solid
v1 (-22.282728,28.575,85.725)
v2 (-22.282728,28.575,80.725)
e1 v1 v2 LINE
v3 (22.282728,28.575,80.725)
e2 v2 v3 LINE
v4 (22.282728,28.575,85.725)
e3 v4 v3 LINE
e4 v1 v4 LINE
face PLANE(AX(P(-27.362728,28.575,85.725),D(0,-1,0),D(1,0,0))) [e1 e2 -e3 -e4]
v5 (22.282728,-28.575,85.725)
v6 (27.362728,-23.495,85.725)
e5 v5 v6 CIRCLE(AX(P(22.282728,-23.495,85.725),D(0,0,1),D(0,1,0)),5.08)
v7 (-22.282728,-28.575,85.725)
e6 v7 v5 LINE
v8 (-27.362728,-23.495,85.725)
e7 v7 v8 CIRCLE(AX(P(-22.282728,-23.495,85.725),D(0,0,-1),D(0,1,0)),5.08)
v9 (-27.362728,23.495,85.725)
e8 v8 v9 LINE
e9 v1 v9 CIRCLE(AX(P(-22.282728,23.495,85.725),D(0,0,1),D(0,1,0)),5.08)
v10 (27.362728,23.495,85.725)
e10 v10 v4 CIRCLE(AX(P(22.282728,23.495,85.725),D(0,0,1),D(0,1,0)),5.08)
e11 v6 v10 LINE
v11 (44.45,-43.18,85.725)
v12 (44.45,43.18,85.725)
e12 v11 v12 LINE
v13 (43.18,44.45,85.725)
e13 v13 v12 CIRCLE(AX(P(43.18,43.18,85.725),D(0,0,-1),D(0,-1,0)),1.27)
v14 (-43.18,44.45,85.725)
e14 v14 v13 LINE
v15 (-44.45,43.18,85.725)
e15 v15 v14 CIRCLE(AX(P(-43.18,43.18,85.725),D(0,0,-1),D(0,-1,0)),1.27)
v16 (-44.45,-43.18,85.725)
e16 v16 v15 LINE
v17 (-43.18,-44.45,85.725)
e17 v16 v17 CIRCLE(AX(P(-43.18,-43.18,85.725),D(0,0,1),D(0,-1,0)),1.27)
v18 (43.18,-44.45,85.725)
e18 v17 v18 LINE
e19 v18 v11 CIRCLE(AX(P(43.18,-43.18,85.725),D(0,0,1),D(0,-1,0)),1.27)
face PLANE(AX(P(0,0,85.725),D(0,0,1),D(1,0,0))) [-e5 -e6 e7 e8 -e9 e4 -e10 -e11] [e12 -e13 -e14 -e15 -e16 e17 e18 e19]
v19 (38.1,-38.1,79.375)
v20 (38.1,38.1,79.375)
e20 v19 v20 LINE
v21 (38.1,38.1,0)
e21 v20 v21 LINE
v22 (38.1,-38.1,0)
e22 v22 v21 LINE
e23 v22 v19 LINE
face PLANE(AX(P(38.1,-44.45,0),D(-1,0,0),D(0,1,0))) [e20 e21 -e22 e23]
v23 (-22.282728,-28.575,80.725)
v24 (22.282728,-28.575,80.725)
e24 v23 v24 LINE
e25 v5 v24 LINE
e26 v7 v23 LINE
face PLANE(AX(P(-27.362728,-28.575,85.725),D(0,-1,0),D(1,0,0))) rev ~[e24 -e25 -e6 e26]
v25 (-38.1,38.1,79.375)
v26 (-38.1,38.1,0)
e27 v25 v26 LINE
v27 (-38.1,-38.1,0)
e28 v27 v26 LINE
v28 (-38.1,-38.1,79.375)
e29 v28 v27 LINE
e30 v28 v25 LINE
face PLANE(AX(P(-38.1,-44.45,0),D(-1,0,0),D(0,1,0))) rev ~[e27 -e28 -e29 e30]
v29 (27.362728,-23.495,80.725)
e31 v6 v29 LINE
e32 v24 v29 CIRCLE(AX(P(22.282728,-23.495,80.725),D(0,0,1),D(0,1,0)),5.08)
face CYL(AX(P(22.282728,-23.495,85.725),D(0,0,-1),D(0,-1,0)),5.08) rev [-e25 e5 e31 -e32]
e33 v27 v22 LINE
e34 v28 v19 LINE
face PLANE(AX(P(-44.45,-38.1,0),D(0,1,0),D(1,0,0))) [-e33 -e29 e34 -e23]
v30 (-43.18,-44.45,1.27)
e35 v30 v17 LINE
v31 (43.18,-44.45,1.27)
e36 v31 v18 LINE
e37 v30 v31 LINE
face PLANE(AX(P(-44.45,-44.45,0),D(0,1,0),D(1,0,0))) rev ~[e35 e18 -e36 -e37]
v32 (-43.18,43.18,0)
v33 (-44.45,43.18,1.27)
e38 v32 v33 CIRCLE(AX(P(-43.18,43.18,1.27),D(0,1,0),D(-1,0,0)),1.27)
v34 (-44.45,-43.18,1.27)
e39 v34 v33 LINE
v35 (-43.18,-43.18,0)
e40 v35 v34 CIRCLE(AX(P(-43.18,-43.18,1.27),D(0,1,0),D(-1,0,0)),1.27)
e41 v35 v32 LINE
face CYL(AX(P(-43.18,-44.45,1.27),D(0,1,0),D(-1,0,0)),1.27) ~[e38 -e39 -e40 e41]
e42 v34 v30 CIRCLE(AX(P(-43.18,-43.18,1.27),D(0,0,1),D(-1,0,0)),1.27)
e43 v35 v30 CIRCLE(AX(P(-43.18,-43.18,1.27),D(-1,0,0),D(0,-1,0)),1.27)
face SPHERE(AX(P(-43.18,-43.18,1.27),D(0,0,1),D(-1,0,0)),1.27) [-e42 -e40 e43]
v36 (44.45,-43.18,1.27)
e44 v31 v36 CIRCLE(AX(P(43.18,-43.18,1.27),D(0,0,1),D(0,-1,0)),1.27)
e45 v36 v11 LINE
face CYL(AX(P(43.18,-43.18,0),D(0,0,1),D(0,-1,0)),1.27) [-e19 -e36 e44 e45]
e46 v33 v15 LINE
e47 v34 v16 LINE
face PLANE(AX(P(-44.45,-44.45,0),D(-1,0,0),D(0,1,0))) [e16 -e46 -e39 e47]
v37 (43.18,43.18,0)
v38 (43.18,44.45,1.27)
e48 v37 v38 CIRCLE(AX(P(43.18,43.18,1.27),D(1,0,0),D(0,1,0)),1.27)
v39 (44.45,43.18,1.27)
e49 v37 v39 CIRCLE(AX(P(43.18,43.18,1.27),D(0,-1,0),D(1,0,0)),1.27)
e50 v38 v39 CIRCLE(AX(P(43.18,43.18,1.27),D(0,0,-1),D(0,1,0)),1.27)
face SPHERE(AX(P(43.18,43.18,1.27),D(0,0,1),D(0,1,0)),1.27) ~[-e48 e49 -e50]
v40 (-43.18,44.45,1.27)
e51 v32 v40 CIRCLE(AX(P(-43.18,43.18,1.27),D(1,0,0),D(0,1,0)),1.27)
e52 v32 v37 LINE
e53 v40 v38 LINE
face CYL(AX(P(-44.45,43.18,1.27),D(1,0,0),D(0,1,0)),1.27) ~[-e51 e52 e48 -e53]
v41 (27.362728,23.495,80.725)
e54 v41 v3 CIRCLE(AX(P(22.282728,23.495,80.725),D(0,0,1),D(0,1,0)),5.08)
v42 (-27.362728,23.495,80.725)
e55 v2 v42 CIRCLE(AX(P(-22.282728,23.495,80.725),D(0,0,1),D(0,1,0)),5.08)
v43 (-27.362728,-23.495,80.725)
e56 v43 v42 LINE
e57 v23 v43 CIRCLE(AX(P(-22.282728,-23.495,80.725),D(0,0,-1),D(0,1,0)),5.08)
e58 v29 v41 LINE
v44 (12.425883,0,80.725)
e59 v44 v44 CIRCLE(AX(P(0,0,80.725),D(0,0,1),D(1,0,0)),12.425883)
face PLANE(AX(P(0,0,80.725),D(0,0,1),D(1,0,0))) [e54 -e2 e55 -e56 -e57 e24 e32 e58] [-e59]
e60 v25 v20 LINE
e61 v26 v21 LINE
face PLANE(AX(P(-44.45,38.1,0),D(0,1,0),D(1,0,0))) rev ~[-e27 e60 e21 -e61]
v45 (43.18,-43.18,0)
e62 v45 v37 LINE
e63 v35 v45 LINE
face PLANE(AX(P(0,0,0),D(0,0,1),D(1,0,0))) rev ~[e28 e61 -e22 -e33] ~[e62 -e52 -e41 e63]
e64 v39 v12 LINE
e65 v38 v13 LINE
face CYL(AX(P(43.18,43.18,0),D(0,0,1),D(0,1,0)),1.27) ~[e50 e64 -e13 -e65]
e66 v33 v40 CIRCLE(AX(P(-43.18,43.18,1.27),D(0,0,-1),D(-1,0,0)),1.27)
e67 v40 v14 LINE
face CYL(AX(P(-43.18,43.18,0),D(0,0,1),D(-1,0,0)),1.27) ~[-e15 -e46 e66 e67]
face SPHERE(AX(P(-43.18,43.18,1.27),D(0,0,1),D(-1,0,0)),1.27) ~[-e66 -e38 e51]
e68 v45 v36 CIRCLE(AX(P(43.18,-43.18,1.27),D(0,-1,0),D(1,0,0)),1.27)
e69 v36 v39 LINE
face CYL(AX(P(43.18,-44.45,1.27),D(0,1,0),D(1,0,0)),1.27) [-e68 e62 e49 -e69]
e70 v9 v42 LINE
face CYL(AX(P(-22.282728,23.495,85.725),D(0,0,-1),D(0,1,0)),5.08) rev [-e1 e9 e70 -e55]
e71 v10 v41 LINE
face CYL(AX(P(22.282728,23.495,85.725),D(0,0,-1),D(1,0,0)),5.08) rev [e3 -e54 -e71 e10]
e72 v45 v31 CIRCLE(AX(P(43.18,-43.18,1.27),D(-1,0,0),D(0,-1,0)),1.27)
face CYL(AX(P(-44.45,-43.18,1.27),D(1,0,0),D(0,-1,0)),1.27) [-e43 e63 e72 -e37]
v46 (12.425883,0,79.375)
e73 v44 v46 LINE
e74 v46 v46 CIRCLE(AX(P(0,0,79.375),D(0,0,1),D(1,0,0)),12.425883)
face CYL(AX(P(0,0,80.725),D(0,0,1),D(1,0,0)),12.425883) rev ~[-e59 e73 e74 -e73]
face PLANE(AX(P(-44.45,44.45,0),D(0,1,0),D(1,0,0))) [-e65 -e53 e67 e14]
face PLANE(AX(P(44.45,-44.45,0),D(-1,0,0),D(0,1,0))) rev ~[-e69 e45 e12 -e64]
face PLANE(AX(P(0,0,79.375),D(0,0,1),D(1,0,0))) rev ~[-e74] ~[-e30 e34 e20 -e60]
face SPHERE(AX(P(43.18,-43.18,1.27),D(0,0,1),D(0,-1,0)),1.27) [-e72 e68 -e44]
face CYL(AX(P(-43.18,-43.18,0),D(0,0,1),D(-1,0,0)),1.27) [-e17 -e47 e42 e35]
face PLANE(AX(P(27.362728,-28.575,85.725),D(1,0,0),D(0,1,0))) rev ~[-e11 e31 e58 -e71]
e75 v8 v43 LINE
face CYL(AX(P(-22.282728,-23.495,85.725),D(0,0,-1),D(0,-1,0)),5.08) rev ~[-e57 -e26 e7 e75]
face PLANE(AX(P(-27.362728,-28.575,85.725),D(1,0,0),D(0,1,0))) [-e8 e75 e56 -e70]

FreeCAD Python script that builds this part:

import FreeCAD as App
import Part
import Sketcher

V = App.Vector
Q = App.Units.Quantity


def edges_at(feature, points):
    """Names of the edges that pass closest to the given points."""
    edges = feature.Shape.Edges
    near = lambda p: min(range(len(edges)), key=lambda i: edges[i].distToShape(Part.Vertex(*p))[0])
    return sorted({f"Edge{near(p) + 1}" for p in points})


def faces_at(feature, points):
    """Names of the faces that lie closest to the given points."""
    faces = feature.Shape.Faces
    near = lambda p: min(range(len(faces)), key=lambda i: faces[i].distToShape(Part.Vertex(*p))[0])
    return sorted({f"Face{near(p) + 1}" for p in points})

doc = App.newDocument("Part")
body = doc.addObject("PartDesign::Body", "Body")

# Sketch on XY plane
sketch1 = body.newObject("Sketcher::SketchObject", "Sketch")
sketch1.AttachmentSupport = (doc.getObject("XY_Plane"), [""])
sketch1.MapMode = "FlatFace"
sketch1.addGeometry([
    Part.LineSegment(V(-44, 44, 0), V(-44, -44, 0)),
    Part.LineSegment(V(-44, -44, 0), V(44, -44, 0)),
    Part.LineSegment(V(44, -44, 0), V(44, 44, 0)),
    Part.LineSegment(V(44, 44, 0), V(-44, 44, 0)),
], False)
sketch1.addConstraint([
    Sketcher.Constraint("Coincident", 0, 2, 1, 1),
    Sketcher.Constraint("Coincident", 1, 2, 2, 1),
    Sketcher.Constraint("Coincident", 2, 2, 3, 1),
    Sketcher.Constraint("Coincident", 3, 2, 0, 1),
    Sketcher.Constraint("Vertical", 0),
    Sketcher.Constraint("Horizontal", 1),
    Sketcher.Constraint("Vertical", 2),
    Sketcher.Constraint("Horizontal", 3),
    Sketcher.Constraint("Symmetric", 0, 2, 2, 2, -1, 1),
    Sketcher.Constraint("Equal", 3, 0),
    Sketcher.Constraint("DistanceX", 1, 1, 1, 2, Q("3.5 in")),
])
pad1 = body.newObject("PartDesign::Pad", "Pad")
pad1.Profile = sketch1
pad1.Length = Q("3.375 in")
doc.recompute()

thickness = body.newObject("PartDesign::Thickness", "Thickness")
thickness.Base = (pad1, faces_at(pad1, [(0, 0, 0)]))
thickness.Value = Q("0.25 in")
thickness.Reversed = True
thickness.Join = "Arc"

# Sketch on XY plane
sketch2 = body.newObject("Sketcher::SketchObject", "Sketch001")
sketch2.AttachmentSupport = (doc.getObject("XY_Plane"), [""])
sketch2.MapMode = "FlatFace"
sketch2.AttachmentOffset = App.Placement(V(0, 0, 3.375 * 25.4), App.Rotation())
sketch2.addGeometry([
    Part.LineSegment(V(-27, 29, 0), V(-27, -29, 0)),
    Part.LineSegment(V(-27, -29, 0), V(27, -29, 0)),
    Part.LineSegment(V(27, -29, 0), V(27, 29, 0)),
    Part.LineSegment(V(27, 29, 0), V(-27, 29, 0)),
], False)
sketch2.addConstraint([
    Sketcher.Constraint("Coincident", 0, 2, 1, 1),
    Sketcher.Constraint("Coincident", 1, 2, 2, 1),
    Sketcher.Constraint("Coincident", 2, 2, 3, 1),
    Sketcher.Constraint("Coincident", 3, 2, 0, 1),
    Sketcher.Constraint("Vertical", 0),
    Sketcher.Constraint("Horizontal", 1),
    Sketcher.Constraint("Vertical", 2),
    Sketcher.Constraint("Horizontal", 3),
    Sketcher.Constraint("Symmetric", 0, 2, 2, 2, -1, 1),
    Sketcher.Constraint("DistanceY", 0, 2, 0, 1, Q("2.25 in")),
    Sketcher.Constraint("DistanceX", 1, 1, 1, 2, Q("54.725456 mm")),
])
pocket1 = body.newObject("PartDesign::Pocket", "Pocket")
pocket1.Profile = sketch2
pocket1.Length = 5
doc.recompute()

fillet = body.newObject("PartDesign::Fillet", "Fillet")
fillet.Base = (pocket1, edges_at(pocket1, [
    (-27.363, 28.575, 83.225),
    (-27.363, -28.575, 83.225),
    (27.363, -28.575, 83.225),
    (27.363, 28.575, 83.225),
]))
fillet.Radius = Q("0.2 in")
doc.recompute()

fillet2 = body.newObject("PartDesign::Fillet", "Fillet001")
fillet2.Base = (fillet, edges_at(fillet, [
    (44.45, -44.45, 42.862),
    (44.45, 44.45, 42.862),
    (-44.45, -44.45, 42.862),
    (-44.45, 44.45, 42.862),
    (-44.45, 0, 0),
    (0, -44.45, 0),
    (0, 44.45, 0),
    (44.45, 0, 0),
]))
fillet2.Radius = Q("0.05 in")

# Sketch on XY plane
sketch3 = body.newObject("Sketcher::SketchObject", "Sketch002")
sketch3.AttachmentSupport = (doc.getObject("XY_Plane"), [""])
sketch3.MapMode = "FlatFace"
sketch3.AttachmentOffset = App.Placement(V(0, 0, 80.725), App.Rotation())
sketch3.addGeometry(Part.Circle(V(0, 0, 0), V(0, 0, 1), 12), False)
sketch3.addConstraint([
    Sketcher.Constraint("Coincident", 0, 3, -1, 1),
    Sketcher.Constraint("Diameter", 0, Q("24.851766 mm")),
])
pocket2 = body.newObject("PartDesign::Pocket", "Pocket001")
pocket2.Profile = sketch3
pocket2.Length = Q("1 in")

doc.recompute()
